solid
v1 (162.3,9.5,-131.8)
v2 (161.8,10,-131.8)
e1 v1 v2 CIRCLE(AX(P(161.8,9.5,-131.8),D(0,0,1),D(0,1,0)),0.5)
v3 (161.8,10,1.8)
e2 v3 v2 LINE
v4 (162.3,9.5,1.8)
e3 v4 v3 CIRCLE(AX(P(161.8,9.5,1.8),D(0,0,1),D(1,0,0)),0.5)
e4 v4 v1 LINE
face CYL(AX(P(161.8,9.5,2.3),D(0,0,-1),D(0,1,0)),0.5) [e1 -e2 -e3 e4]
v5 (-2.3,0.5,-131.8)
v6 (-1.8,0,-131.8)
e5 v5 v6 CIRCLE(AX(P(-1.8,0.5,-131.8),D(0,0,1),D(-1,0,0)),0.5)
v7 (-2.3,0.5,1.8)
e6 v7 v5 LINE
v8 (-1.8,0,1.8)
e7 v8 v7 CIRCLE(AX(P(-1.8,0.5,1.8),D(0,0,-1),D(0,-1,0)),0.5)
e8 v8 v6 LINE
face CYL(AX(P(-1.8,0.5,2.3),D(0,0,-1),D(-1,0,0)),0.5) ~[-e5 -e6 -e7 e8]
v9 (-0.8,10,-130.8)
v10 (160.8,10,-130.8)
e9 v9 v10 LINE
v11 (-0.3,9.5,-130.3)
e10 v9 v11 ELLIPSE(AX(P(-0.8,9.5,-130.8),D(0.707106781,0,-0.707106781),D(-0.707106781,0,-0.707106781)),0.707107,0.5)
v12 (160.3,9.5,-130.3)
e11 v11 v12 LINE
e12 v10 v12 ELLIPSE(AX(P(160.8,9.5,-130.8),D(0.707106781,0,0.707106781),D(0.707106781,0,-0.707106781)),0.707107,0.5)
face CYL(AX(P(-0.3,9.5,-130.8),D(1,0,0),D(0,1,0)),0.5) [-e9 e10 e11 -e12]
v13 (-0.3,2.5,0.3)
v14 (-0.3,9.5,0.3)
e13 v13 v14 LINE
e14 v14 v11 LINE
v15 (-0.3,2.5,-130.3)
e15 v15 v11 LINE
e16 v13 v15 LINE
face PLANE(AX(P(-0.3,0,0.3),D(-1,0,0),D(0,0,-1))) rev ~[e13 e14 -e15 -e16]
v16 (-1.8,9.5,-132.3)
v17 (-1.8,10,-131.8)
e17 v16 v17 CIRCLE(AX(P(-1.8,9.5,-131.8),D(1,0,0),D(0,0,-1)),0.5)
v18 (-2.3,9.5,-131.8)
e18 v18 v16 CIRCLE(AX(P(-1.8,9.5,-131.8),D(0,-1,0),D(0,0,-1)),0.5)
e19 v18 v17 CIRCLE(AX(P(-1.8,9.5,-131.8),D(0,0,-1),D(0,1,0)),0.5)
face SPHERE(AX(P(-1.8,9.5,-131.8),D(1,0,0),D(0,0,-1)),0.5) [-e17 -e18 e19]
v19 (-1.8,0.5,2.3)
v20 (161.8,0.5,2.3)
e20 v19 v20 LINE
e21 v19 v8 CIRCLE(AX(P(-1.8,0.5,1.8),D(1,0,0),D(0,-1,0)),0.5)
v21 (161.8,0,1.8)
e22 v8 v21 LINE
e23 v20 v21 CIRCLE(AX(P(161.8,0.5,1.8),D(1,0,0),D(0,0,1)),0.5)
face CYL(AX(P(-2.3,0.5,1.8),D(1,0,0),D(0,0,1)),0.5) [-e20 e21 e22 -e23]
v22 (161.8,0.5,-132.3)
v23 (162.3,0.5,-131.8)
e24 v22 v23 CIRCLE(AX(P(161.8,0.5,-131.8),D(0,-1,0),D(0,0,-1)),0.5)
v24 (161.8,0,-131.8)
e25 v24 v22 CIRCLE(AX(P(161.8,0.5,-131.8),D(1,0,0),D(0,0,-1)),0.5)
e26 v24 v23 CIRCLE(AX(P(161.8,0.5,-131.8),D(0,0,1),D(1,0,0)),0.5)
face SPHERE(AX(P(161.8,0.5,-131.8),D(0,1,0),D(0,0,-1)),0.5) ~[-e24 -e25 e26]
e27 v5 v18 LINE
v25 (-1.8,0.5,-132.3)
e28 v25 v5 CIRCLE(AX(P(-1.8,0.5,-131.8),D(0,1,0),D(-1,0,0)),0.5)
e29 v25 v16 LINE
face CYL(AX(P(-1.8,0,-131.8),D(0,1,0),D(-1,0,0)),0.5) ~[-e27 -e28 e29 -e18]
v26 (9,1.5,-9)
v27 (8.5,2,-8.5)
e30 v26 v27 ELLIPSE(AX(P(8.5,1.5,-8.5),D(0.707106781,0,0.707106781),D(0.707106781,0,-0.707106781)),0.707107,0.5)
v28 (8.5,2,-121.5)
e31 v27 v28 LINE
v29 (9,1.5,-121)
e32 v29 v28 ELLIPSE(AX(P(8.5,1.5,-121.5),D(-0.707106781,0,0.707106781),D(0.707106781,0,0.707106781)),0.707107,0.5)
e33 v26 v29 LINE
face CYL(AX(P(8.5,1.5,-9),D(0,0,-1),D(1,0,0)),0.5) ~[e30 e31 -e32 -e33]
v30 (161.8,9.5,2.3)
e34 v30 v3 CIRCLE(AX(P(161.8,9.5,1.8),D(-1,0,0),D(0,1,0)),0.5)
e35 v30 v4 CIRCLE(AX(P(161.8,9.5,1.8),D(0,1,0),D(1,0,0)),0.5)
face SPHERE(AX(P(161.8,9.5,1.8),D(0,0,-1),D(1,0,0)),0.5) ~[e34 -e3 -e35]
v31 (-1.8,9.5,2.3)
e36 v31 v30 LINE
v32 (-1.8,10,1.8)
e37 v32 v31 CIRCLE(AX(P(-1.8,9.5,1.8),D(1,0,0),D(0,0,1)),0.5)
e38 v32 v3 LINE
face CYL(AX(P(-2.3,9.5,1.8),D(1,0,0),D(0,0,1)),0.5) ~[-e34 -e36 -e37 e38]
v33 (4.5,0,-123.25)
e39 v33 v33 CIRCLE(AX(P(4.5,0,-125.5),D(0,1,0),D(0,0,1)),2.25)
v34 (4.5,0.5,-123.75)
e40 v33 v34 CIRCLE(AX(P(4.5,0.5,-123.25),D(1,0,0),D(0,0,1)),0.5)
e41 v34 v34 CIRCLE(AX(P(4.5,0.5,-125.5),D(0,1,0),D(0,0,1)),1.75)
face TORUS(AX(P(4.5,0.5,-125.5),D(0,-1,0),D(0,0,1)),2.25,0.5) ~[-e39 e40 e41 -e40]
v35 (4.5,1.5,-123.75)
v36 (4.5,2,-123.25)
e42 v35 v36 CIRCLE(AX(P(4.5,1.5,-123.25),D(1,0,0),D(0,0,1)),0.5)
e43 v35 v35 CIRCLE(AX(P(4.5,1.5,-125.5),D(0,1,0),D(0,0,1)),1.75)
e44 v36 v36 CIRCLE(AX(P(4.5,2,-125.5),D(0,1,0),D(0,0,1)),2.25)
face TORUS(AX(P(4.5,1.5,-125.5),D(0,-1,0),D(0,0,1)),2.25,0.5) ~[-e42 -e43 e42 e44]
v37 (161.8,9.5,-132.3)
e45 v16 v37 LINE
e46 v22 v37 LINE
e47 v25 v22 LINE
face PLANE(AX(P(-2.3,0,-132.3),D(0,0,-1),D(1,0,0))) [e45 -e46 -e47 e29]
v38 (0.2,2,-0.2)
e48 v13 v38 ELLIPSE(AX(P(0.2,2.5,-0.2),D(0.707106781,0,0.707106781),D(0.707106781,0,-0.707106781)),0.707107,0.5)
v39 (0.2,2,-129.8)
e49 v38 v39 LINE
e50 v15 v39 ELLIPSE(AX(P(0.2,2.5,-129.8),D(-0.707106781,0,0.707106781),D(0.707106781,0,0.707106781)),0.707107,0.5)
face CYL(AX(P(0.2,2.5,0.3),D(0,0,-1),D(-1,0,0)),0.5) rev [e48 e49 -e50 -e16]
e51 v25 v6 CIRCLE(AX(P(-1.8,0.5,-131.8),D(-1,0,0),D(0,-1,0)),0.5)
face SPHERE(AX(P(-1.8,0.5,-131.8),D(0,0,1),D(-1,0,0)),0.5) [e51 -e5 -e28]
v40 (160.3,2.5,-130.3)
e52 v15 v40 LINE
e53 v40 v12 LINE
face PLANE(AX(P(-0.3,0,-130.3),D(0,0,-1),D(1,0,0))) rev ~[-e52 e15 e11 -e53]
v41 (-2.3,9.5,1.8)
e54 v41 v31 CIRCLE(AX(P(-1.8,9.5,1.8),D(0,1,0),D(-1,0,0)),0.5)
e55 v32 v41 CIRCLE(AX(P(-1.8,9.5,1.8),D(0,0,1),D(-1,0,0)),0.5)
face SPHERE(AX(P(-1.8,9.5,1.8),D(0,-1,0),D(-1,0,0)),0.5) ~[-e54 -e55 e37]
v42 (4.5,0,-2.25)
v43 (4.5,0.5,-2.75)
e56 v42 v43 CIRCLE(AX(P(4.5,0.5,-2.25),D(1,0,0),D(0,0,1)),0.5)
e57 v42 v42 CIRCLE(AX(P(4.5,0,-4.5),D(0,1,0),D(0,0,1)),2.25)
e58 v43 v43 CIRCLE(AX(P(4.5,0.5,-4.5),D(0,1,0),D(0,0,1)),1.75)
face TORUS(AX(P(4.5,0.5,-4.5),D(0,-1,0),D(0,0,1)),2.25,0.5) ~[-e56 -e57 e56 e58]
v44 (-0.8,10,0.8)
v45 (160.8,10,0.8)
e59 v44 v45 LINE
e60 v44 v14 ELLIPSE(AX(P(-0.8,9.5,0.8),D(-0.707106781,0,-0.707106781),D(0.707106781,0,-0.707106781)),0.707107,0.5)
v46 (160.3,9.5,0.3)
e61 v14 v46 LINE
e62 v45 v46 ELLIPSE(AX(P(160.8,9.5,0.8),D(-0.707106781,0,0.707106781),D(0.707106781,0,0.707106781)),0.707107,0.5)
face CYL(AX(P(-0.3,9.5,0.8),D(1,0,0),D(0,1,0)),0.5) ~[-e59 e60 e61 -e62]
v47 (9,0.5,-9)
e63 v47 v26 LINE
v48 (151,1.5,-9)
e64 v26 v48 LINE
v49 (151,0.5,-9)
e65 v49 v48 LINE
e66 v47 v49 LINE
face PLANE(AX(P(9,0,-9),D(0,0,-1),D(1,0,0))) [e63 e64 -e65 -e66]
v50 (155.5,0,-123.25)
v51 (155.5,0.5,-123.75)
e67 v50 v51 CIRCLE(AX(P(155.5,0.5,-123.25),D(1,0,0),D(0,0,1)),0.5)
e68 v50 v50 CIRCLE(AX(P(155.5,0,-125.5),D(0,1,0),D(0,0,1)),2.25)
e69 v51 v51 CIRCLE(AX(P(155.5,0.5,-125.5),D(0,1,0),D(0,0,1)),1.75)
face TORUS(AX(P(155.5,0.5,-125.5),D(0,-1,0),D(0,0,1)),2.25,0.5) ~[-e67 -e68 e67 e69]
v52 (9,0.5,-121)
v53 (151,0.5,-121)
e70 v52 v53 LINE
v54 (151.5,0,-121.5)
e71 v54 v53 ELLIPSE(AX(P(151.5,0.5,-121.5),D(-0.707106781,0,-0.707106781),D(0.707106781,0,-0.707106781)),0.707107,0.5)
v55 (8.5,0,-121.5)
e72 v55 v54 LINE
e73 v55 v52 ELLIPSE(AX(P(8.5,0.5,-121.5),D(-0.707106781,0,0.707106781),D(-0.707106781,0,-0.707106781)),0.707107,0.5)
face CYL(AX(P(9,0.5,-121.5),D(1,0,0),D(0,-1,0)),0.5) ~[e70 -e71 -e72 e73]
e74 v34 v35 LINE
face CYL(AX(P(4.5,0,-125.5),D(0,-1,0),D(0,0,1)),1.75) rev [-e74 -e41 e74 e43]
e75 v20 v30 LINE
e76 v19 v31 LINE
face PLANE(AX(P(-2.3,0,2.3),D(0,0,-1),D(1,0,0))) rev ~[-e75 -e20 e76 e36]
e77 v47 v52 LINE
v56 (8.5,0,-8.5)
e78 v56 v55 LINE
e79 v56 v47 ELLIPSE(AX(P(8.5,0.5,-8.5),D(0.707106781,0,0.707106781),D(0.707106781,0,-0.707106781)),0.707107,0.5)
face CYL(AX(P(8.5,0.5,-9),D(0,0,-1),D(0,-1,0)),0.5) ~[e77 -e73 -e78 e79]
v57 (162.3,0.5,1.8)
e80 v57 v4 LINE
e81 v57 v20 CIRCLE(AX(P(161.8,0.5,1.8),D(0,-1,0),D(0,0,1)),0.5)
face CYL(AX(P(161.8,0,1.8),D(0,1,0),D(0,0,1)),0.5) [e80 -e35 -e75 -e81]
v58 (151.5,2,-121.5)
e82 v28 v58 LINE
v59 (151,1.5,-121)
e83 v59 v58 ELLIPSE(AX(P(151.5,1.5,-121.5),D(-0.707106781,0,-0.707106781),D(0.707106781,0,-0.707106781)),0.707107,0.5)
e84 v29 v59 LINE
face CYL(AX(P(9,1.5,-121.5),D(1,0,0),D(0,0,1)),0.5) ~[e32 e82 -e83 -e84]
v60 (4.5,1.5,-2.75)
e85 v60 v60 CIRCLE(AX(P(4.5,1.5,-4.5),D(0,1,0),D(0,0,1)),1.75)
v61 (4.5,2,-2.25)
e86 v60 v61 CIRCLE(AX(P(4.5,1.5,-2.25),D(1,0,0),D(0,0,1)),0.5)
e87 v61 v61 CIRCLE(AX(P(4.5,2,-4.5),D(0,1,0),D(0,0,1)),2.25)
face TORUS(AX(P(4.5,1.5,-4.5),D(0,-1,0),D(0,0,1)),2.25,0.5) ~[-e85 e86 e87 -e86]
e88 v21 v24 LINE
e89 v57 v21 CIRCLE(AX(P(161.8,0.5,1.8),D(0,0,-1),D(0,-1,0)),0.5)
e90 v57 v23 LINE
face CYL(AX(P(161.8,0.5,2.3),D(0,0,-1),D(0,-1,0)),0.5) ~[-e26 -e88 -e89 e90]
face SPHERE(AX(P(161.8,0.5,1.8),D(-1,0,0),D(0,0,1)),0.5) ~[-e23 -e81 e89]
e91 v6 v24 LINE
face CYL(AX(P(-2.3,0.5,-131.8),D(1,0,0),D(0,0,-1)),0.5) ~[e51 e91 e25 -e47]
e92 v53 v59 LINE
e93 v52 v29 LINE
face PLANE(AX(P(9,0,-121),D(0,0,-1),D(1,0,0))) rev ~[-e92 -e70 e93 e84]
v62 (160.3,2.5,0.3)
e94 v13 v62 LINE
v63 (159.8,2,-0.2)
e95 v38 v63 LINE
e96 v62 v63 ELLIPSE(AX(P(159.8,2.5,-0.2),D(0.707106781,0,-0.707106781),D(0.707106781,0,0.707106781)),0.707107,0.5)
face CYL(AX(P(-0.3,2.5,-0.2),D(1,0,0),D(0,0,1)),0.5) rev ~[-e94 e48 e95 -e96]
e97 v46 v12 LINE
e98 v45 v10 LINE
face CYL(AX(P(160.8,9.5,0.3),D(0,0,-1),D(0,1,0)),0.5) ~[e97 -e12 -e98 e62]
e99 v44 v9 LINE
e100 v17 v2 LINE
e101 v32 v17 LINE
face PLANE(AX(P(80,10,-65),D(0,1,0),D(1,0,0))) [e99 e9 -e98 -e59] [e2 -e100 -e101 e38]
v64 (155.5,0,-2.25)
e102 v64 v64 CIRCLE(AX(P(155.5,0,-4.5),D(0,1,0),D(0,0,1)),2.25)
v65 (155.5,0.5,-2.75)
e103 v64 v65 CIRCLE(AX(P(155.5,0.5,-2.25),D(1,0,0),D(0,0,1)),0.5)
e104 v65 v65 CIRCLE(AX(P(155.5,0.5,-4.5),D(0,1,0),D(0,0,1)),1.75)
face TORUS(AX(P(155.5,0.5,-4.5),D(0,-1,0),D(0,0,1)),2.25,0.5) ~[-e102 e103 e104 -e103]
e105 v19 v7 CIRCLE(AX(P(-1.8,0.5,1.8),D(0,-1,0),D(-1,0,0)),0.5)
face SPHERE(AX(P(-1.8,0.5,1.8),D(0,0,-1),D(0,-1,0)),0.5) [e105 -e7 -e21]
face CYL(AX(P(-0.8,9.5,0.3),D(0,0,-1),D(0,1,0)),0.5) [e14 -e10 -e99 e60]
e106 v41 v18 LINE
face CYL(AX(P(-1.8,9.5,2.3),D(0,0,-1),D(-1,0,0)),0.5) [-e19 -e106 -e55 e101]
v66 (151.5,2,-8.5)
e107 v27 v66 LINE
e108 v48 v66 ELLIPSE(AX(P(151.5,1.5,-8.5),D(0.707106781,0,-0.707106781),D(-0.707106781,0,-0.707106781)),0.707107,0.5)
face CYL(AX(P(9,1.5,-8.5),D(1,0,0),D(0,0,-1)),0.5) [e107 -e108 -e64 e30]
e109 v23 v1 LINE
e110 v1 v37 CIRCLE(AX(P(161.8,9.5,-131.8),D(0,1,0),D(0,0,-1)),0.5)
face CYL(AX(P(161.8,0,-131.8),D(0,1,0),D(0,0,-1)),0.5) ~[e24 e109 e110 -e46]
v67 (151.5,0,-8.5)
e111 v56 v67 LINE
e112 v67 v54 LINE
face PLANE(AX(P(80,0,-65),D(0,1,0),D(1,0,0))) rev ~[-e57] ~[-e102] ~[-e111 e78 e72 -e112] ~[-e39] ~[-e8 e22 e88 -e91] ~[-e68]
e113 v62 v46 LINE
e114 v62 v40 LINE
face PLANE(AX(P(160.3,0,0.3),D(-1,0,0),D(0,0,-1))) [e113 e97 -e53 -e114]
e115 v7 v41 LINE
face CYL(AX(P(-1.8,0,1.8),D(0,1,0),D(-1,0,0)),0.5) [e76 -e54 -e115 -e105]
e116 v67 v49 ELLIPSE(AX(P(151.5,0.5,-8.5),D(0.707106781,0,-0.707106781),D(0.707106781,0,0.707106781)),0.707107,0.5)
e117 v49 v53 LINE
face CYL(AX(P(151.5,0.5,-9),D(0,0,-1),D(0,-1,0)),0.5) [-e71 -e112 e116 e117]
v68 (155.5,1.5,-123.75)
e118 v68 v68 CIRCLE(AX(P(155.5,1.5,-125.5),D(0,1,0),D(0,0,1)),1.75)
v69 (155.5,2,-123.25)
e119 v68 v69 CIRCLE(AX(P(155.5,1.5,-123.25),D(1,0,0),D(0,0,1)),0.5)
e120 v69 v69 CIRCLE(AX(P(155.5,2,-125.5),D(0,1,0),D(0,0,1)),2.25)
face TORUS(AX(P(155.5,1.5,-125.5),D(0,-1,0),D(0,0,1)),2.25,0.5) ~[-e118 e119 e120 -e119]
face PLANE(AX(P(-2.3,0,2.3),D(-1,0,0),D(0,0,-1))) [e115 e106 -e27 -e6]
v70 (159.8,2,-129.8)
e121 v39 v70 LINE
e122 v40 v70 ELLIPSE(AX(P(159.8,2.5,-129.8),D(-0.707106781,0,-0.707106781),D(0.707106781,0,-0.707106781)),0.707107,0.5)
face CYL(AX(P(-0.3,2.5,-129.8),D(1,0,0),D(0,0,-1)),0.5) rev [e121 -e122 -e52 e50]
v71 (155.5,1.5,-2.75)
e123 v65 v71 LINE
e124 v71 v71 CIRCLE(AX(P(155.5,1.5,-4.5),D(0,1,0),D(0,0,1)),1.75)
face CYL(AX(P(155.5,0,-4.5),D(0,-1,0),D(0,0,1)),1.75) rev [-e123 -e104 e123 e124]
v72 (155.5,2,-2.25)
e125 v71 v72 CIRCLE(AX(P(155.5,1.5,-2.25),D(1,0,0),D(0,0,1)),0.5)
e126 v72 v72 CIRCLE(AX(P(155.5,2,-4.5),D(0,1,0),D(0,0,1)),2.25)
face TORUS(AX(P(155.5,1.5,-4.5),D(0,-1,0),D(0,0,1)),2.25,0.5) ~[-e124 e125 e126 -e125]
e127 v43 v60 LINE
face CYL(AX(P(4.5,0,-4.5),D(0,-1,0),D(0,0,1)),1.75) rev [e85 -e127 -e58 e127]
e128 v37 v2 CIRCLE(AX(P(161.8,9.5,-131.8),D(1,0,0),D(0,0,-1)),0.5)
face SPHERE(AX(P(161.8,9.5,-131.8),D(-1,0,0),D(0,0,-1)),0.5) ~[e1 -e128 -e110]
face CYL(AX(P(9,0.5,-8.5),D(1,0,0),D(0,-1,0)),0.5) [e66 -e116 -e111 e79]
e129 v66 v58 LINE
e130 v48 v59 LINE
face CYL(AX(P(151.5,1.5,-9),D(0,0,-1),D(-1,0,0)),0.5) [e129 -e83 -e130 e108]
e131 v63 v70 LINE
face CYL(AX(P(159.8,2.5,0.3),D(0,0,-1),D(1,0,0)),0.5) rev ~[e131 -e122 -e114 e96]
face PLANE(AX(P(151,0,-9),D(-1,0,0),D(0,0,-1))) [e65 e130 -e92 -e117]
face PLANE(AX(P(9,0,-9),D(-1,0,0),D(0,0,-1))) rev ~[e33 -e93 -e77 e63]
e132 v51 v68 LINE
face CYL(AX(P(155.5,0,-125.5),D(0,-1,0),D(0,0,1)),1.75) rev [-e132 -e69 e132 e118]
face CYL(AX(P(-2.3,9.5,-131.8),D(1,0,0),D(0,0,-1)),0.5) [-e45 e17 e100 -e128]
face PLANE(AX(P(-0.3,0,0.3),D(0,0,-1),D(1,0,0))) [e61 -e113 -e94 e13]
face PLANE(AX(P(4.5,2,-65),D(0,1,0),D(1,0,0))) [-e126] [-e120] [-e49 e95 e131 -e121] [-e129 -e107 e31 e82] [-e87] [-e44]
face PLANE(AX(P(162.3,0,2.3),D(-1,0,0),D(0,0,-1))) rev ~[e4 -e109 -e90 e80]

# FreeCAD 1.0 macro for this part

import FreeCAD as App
import Part
import Sketcher

V = App.Vector
Q = App.Units.Quantity


def edges_at(feature, points):
    """Names of the edges that pass closest to the given points."""
    edges = feature.Shape.Edges
    near = lambda p: min(range(len(edges)), key=lambda i: edges[i].distToShape(Part.Vertex(*p))[0])
    return sorted({f"Edge{near(p) + 1}" for p in points})


def add_polygon(sketch, points):
    """Adds a closed chain of lines whose ends are joined by coincident constraints."""
    first, n = sketch.GeometryCount, len(points)
    for a, b in zip(points, points[1:] + points[:1]):
        sketch.addGeometry(Part.LineSegment(App.Vector(*a, 0), App.Vector(*b, 0)), False)
    for i in range(n):
        sketch.addConstraint(Sketcher.Constraint("Coincident", first + i, 2, first + (i + 1) % n, 1))

doc = App.newDocument("Part")
body = doc.addObject("PartDesign::Body", "Body")

sketch1 = body.newObject("Sketcher::SketchObject", "Sketch")
sketch1.AttachmentSupport = (doc.getObject("XZ_Plane"), [""])
sketch1.MapMode = "FlatFace"
add_polygon(sketch1, [(-0.3, -130.3), (-0.3, 0.3), (160.3, 0.3), (160.3, -130.3)])
sketch1.addGeometry(Part.Circle(V(4.5, -4.5, 0), V(0, 0, 1), 1.8), False)
add_polygon(sketch1, [(151, -9), (9, -9), (9, -121), (151, -121)])
sketch1.addGeometry(Part.Circle(V(155.5, -4.5, 0), V(0, 0, 1), 1.8), False)
sketch1.addGeometry(Part.Circle(V(155.5, -125.5, 0), V(0, 0, 1), 1.8), False)
sketch1.addGeometry(Part.Circle(V(4.5, -125.5, 0), V(0, 0, 1), 1.8), False)
sketch1.addConstraint([
    Sketcher.Constraint("Vertical", 0),
    Sketcher.Constraint("Horizontal", 1),
    Sketcher.Constraint("Vertical", 2),
    Sketcher.Constraint("Horizontal", 3),
    Sketcher.Constraint("Horizontal", 5),
    Sketcher.Constraint("Vertical", 6),
    Sketcher.Constraint("Horizontal", 7),
    Sketcher.Constraint("Vertical", 8),
    Sketcher.Constraint("Equal", 4, 9),
    Sketcher.Constraint("Equal", 9, 10),
    Sketcher.Constraint("Equal", 10, 11),
    Sketcher.Constraint("Horizontal", 4, 3, 9, 3),
    Sketcher.Constraint("Horizontal", 10, 3, 11, 3),
    Sketcher.Constraint("Vertical", 9, 3, 10, 3),
    Sketcher.Constraint("Vertical", 4, 3, 11, 3),
    Sketcher.Constraint("Diameter", 4, Q("3.5 mm")),
    Sketcher.Constraint("DistanceX", 5, 2, 5, 1, Q("142 mm")),
    Sketcher.Constraint("DistanceY", 6, 2, 6, 1, Q("112 mm")),
    Sketcher.Constraint("DistanceX", 1, 1, 1, 2, Q("160.6 mm")),
    Sketcher.Constraint("DistanceY", 0, 1, 0, 2, Q("130.6 mm")),
    Sketcher.Constraint("DistanceX", -1, 1, 5, 2, Q("9 mm")),
    Sketcher.Constraint("DistanceY", 5, 2, -1, 1, Q("9 mm")),
    Sketcher.Constraint("DistanceX", 4, 3, 9, 3, Q("151 mm")),
    Sketcher.Constraint("DistanceY", 10, 3, 9, 3, Q("121 mm")),
    Sketcher.Constraint("DistanceX", -1, 1, 4, 3, Q("4.5 mm")),
    Sketcher.Constraint("DistanceY", 4, 3, -1, 1, Q("4.5 mm")),
    Sketcher.Constraint("DistanceX", 0, 2, -1, 1, Q("0.3 mm")),
    Sketcher.Constraint("DistanceY", -1, 1, 0, 2, Q("0.3 mm")),
])
pad1 = body.newObject("PartDesign::Pad", "Pad")
pad1.Profile = sketch1
pad1.Length = 2
pad1.Reversed = True

sketch2 = body.newObject("Sketcher::SketchObject", "Sketch001")
sketch2.AttachmentSupport = (doc.getObject("XZ_Plane"), [""])
sketch2.MapMode = "FlatFace"
add_polygon(sketch2, [(-2, -132), (-2, 2), (162, 2), (162, -132)])
add_polygon(sketch2, [(160, 0), (0, 0), (0, -130), (160, -130)])
sketch2.addConstraint([
    Sketcher.Constraint("Vertical", 0),
    Sketcher.Constraint("Horizontal", 1),
    Sketcher.Constraint("Vertical", 2),
    Sketcher.Constraint("Horizontal", 3),
    Sketcher.Constraint("Horizontal", 4),
    Sketcher.Constraint("Vertical", 5),
    Sketcher.Constraint("Horizontal", 6),
    Sketcher.Constraint("Vertical", 7),
    Sketcher.Constraint("DistanceX", 1, 1, 1, 2, Q("164.6 mm")),
    Sketcher.Constraint("DistanceX", 4, 2, 4, 1, Q("160.6 mm")),
    Sketcher.Constraint("DistanceY", 0, 1, 0, 2, Q("134.6 mm")),
    Sketcher.Constraint("DistanceY", 5, 2, 5, 1, Q("130.6 mm")),
    Sketcher.Constraint("DistanceX", 0, 2, 4, 2, Q("2 mm")),
    Sketcher.Constraint("DistanceY", 4, 2, 0, 2, Q("2 mm")),
    Sketcher.Constraint("DistanceX", 0, 2, -1, 1, Q("2.3 mm")),
    Sketcher.Constraint("DistanceY", -1, 1, 0, 2, Q("2.3 mm")),
])
pad2 = body.newObject("PartDesign::Pad", "Pad001")
pad2.Profile = sketch2
pad2.Length = 10
pad2.Reversed = True
doc.recompute()

fillet = body.newObject("PartDesign::Fillet", "Fillet")
fillet.Base = (pad2, edges_at(pad2, [
    (80, 2, -121),
    (155.5, 0, -127.25),
    (151, 2, -65),
    (155.5, 0, -6.25),
    (4.5, 0, -6.25),
    (4.5, 0, -127.25),
    (9, 0, -65),
    (80, 0, -9),
    (151, 0, -65),
    (80, 2, -9),
    (80, 0, -121),
    (9, 2, -65),
    (80, 2, -130.3),
    (-0.3, 2, -65),
    (80, 2, 0.3),
    (-0.3, 10, -65),
    (80, 10, 0.3),
    (80, 10, -132.3),
    (162.3, 5, -132.3),
    (-2.3, 0, -65),
    (-2.3, 5, -132.3),
    (80, 0, 2.3),
    (-2.3, 5, 2.3),
    (160.3, 2, -65),
    (162.3, 10, -65),
    (162.3, 5, 2.3),
    (80, 10, -130.3),
    (160.3, 10, -65),
    (-2.3, 10, -65),
    (80, 10, 2.3),
    (80, 0, -132.3),
    (162.3, 0, -65),
    (4.5, 2, -127.25),
    (4.5, 2, -6.25),
    (155.5, 2, -6.25),
    (155.5, 2, -127.25),
]))
fillet.Radius = 0.5

doc.recompute()
